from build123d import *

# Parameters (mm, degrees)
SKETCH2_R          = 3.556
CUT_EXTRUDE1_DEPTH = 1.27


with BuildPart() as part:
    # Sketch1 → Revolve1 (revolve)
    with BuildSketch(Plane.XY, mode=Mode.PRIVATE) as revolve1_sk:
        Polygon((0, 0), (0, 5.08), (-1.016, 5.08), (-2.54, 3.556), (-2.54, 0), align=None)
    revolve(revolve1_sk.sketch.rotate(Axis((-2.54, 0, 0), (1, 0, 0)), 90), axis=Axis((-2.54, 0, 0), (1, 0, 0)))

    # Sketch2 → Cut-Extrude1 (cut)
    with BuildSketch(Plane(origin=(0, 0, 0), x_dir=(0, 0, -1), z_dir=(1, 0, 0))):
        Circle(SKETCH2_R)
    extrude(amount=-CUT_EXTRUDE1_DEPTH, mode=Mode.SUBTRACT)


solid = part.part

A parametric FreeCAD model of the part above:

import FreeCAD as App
import Part
import Sketcher
from FreeCAD import Vector
Q = App.Units.Quantity

doc = App.newDocument("Part")
body = doc.addObject("PartDesign::Body", "Body")

# Sketch on XY plane
sketch1 = doc.addObject("Sketcher::SketchObject", "Sketch")
body.addObject(sketch1)
sketch1.AttachmentSupport = (doc.XY_Plane, [""])
sketch1.MapMode = "FlatFace"
sketch1.addGeometry(Part.LineSegment(Vector(0, 0, 0), Vector(0, 5.1, 0)), False)
sketch1.addGeometry(Part.LineSegment(Vector(0, 5.1, 0), Vector(-1, 5.1, 0)), False)
sketch1.addGeometry(Part.LineSegment(Vector(-1, 5.1, 0), Vector(-2.5, 3.6, 0)), False)
sketch1.addGeometry(Part.LineSegment(Vector(-2.5, 3.6, 0), Vector(-2.5, 0, 0)), False)
sketch1.addGeometry(Part.LineSegment(Vector(-2.5, 0, 0), Vector(0, 0, 0)), False)
sketch1.addConstraint(Sketcher.Constraint("Coincident", 0, 2, 1, 1))
sketch1.addConstraint(Sketcher.Constraint("Coincident", 1, 2, 2, 1))
sketch1.addConstraint(Sketcher.Constraint("Coincident", 2, 2, 3, 1))
sketch1.addConstraint(Sketcher.Constraint("Coincident", 3, 2, 4, 1))
sketch1.addConstraint(Sketcher.Constraint("Coincident", 4, 2, 0, 1))
sketch1.addConstraint(Sketcher.Constraint("Vertical", 0))
sketch1.addConstraint(Sketcher.Constraint("Horizontal", 1))
sketch1.addConstraint(Sketcher.Constraint("Vertical", 3))
sketch1.addConstraint(Sketcher.Constraint("Horizontal", 4))
sketch1.addConstraint(Sketcher.Constraint("Coincident", 4, 2, -1, 1))
sketch1.addConstraint(Sketcher.Constraint("DistanceX", 4, 1, 4, 2, Q("0.1 in")))
sketch1.addConstraint(Sketcher.Constraint("DistanceY", 0, 1, 0, 2, Q("0.2 in")))
sketch1.addConstraint(Sketcher.Constraint("Angle", 2, Q("-135 deg")))
sketch1.addConstraint(Sketcher.Constraint("DistanceX", 1, 2, 1, 1, Q("0.04 in")))
revolution = doc.addObject("PartDesign::Revolution", "Revolution")
body.addObject(revolution)
revolution.Profile = sketch1
revolution.ReferenceAxis = (sketch1, ["H_Axis"])
revolution.Angle = 360

# Sketch on YZ plane
sketch2 = doc.addObject("Sketcher::SketchObject", "Sketch001")
body.addObject(sketch2)
sketch2.AttachmentSupport = (doc.YZ_Plane, [""])
sketch2.MapMode = "FlatFace"
sketch2.addGeometry(Part.Circle(Vector(0, 0, 0), Vector(0, 0, 1), 3.6), False)
sketch2.addConstraint(Sketcher.Constraint("Coincident", 0, 3, -1, 1))
sketch2.addConstraint(Sketcher.Constraint("Diameter", 0, Q("0.28 in")))
pocket1 = doc.addObject("PartDesign::Pocket", "Pocket")
body.addObject(pocket1)
pocket1.Profile = sketch2
pocket1.Length = Q("0.05 in")

doc.recompute()
